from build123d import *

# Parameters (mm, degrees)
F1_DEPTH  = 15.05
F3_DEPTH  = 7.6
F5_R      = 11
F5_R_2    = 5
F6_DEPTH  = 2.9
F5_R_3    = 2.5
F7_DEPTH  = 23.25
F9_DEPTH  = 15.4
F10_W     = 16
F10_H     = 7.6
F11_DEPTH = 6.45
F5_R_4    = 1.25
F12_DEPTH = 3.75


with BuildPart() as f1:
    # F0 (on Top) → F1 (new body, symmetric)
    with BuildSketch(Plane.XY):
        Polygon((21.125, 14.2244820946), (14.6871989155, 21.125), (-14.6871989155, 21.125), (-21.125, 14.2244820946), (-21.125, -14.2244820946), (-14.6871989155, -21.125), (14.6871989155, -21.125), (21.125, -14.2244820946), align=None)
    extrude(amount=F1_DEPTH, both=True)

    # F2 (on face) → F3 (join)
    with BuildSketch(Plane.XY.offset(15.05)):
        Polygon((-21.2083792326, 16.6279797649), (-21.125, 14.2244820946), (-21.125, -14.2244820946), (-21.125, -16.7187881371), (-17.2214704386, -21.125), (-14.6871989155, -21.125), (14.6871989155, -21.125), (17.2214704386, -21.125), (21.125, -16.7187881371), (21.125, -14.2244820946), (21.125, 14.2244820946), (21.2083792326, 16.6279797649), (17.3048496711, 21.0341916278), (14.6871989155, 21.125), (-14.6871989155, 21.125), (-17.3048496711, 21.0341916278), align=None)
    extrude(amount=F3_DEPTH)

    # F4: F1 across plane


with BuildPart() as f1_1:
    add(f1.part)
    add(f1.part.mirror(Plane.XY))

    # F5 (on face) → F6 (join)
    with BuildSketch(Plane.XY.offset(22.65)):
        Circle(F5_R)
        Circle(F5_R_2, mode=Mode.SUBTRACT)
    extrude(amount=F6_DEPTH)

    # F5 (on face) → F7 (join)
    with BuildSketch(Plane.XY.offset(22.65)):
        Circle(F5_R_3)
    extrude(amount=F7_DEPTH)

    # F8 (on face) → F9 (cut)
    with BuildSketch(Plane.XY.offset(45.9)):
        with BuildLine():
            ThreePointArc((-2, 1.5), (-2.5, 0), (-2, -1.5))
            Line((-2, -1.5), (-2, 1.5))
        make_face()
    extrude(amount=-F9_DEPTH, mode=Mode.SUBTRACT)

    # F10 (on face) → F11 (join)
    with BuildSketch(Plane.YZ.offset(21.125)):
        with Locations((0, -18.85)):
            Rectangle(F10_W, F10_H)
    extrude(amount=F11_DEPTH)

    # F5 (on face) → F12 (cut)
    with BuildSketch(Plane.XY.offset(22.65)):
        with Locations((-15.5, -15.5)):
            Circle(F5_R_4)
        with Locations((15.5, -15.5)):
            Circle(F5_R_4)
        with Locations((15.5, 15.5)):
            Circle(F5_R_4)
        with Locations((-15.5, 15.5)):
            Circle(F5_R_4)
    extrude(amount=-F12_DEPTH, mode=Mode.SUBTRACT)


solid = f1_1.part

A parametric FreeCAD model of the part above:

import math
import FreeCAD as App
import Part
import Sketcher

V = App.Vector
Q = App.Units.Quantity

doc = App.newDocument("Part")
params = doc.addObject("Spreadsheet::Sheet", "Params")
for row, (alias, value) in enumerate([
    ("pad1_length", "30.1 mm"),
    ("pad2_length", "7.6 mm"),
    ("sketch3_diameter", "22 mm"),
    ("sketch3_diameter2", "10 mm"),
    ("pad3_length", "2.9 mm"),
    ("sketch4_diameter", "5 mm"),
    ("pad4_length", "23.25 mm"),
    ("sketch5_radius", "2.5 mm"),
    ("sketch5_height", "3 mm"),
    ("pocket1_length", "15.4 mm"),
    ("sketch6_width", "16 mm"),
    ("sketch6_height", "7.6 mm"),
    ("pad5_length", "6.45 mm"),
    ("sketch7_diameter", "2.5 mm"),
    ("pocket2_length", "3.75 mm"),
], start=1):
    params.set(f"A{row}", alias)
    params.set(f"B{row}", "=" + value)
    params.setAlias(f"B{row}", alias)

body = doc.addObject("PartDesign::Body", "Body")

sketch1 = body.newObject("Sketcher::SketchObject", "Sketch")
sketch1.AttachmentSupport = (doc.getObject("XY_Plane"), [""])
sketch1.MapMode = "FlatFace"
sketch1.addGeometry([
    Part.LineSegment(V(21, 14, 0), V(15, 21, 0)),
    Part.LineSegment(V(15, 21, 0), V(-15, 21, 0)),
    Part.LineSegment(V(-15, 21, 0), V(-21, 14, 0)),
    Part.LineSegment(V(-21, 14, 0), V(-21, -14, 0)),
    Part.LineSegment(V(-21, -14, 0), V(-15, -21, 0)),
    Part.LineSegment(V(-15, -21, 0), V(15, -21, 0)),
    Part.LineSegment(V(15, -21, 0), V(21, -14, 0)),
    Part.LineSegment(V(21, -14, 0), V(21, 14, 0)),
], False)
sketch1.addConstraint([
    Sketcher.Constraint("Coincident", 0, 2, 1, 1),
    Sketcher.Constraint("Coincident", 1, 2, 2, 1),
    Sketcher.Constraint("Coincident", 2, 2, 3, 1),
    Sketcher.Constraint("Coincident", 3, 2, 4, 1),
    Sketcher.Constraint("Coincident", 4, 2, 5, 1),
    Sketcher.Constraint("Coincident", 5, 2, 6, 1),
    Sketcher.Constraint("Coincident", 6, 2, 7, 1),
    Sketcher.Constraint("Coincident", 7, 2, 0, 1),
    Sketcher.Constraint("Horizontal", 1),
    Sketcher.Constraint("Vertical", 3),
    Sketcher.Constraint("Horizontal", 5),
    Sketcher.Constraint("Vertical", 7),
    Sketcher.Constraint("Symmetric", 0, 2, 4, 2, -1, 1),
    Sketcher.Constraint("Symmetric", 2, 2, 6, 2, -1, 1),
    Sketcher.Constraint("Parallel", 0, 4),
    Sketcher.Constraint("Parallel", 2, 6),
    Sketcher.Constraint("Horizontal", 3, 2, 6, 2),
    Sketcher.Constraint("Vertical", 1, 2, 4, 2),
    Sketcher.Constraint("DistanceY", 4, 2, 1, 2, Q("42.25 mm")),
    Sketcher.Constraint("DistanceX", 3, 2, 6, 2, Q("42.25 mm")),
    Sketcher.Constraint("DistanceX", -1, 1, 0, 2, Q("14.687199 mm")),
    Sketcher.Constraint("Distance", 0, Q("9.437289 mm")),
])
pad1 = body.newObject("PartDesign::Pad", "Pad")
pad1.Profile = sketch1
pad1.setExpression("Length", "Params.pad1_length")
pad1.Midplane = True

sketch2 = body.newObject("Sketcher::SketchObject", "Sketch001")
sketch2.AttachmentSupport = (doc.getObject("XY_Plane"), [""])
sketch2.MapMode = "FlatFace"
sketch2.AttachmentOffset = App.Placement(V(0, 0, 15.05), App.Rotation())
sketch2.addGeometry([
    Part.LineSegment(V(-21.2, 16.6, 0), V(-21.1, 14.2, 0)),
    Part.LineSegment(V(-21.1, 14.2, 0), V(-21.1, -16.7, 0)),
    Part.LineSegment(V(-21.1, -16.7, 0), V(-17.2, -21.1, 0)),
    Part.LineSegment(V(-17.2, -21.1, 0), V(17.2, -21.1, 0)),
    Part.LineSegment(V(17.2, -21.1, 0), V(21.1, -16.7, 0)),
    Part.LineSegment(V(21.1, -16.7, 0), V(21.1, 14.2, 0)),
    Part.LineSegment(V(21.1, 14.2, 0), V(21.2, 16.6, 0)),
    Part.LineSegment(V(21.2, 16.6, 0), V(17.3, 21, 0)),
    Part.LineSegment(V(17.3, 21, 0), V(14.7, 21.1, 0)),
    Part.LineSegment(V(14.7, 21.1, 0), V(-14.7, 21.1, 0)),
    Part.LineSegment(V(-14.7, 21.1, 0), V(-17.3, 21, 0)),
    Part.LineSegment(V(-17.3, 21, 0), V(-21.2, 16.6, 0)),
], False)
sketch2.addConstraint([
    Sketcher.Constraint("Coincident", 0, 2, 1, 1),
    Sketcher.Constraint("Coincident", 1, 2, 2, 1),
    Sketcher.Constraint("Coincident", 2, 2, 3, 1),
    Sketcher.Constraint("Coincident", 3, 2, 4, 1),
    Sketcher.Constraint("Coincident", 4, 2, 5, 1),
    Sketcher.Constraint("Coincident", 5, 2, 6, 1),
    Sketcher.Constraint("Coincident", 6, 2, 7, 1),
    Sketcher.Constraint("Coincident", 7, 2, 8, 1),
    Sketcher.Constraint("Coincident", 8, 2, 9, 1),
    Sketcher.Constraint("Coincident", 9, 2, 10, 1),
    Sketcher.Constraint("Coincident", 10, 2, 11, 1),
    Sketcher.Constraint("Coincident", 11, 2, 0, 1),
    Sketcher.Constraint("Vertical", 1),
    Sketcher.Constraint("Horizontal", 3),
    Sketcher.Constraint("Vertical", 5),
    Sketcher.Constraint("Horizontal", 9),
    Sketcher.Constraint("Symmetric", 1, 2, 4, 2, -2),
    Sketcher.Constraint("Symmetric", 7, 2, 10, 2, -2),
    Sketcher.Constraint("Symmetric", 6, 2, 11, 2, -2),
    Sketcher.Constraint("Parallel", 2, 7),
    Sketcher.Constraint("Perpendicular", 6, 8),
    Sketcher.Constraint("Perpendicular", 0, 10),
    Sketcher.Constraint("Parallel", 4, 11),
    Sketcher.Constraint("Horizontal", 0, 2, 5, 2),
    Sketcher.Constraint("Equal", 4, 7),
    Sketcher.Constraint("DistanceX", 1, 2, 4, 2, Q("42.25 mm")),
    Sketcher.Constraint("DistanceY", 2, 2, -1, 1, Q("21.125 mm")),
    Sketcher.Constraint("DistanceY", -1, 1, 8, 2, Q("21.125 mm")),
    Sketcher.Constraint("DistanceX", 3, 1, 3, 2, Q("34.442941 mm")),
    Sketcher.Constraint("DistanceY", 1, 2, 1, 1, Q("30.94327 mm")),
    Sketcher.Constraint("DistanceX", -1, 1, 8, 2, Q("14.687199 mm")),
    Sketcher.Constraint("DistanceX", 10, 2, 7, 2, Q("34.609699 mm")),
    Sketcher.Constraint("DistanceY", 1, 2, -1, 1, Q("16.718788 mm")),
])
pad2 = body.newObject("PartDesign::Pad", "Pad001")
pad2.Profile = sketch2
pad2.setExpression("Length", "Params.pad2_length")
body2 = doc.addObject("PartDesign::Body", "Body001")
doc.recompute()

body2.BaseFeature = body
doc.recompute()

mirroring = doc.addObject("Part::Mirroring", "Mirroring")
mirroring.Source = body
mirroring.Base = V(0, 0, 0)
mirroring.Normal = V(0, 0, 1)
body3 = doc.addObject("PartDesign::Body", "Body002")
body3.BaseFeature = mirroring
boolean = body2.newObject("PartDesign::Boolean", "Boolean")
boolean.Type = "Fuse"
boolean.addObjects([body3])
doc.recompute()

sketch3 = body2.newObject("Sketcher::SketchObject", "Sketch002")
sketch3.AttachmentSupport = (doc.getObject("XY_Plane001"), [""])
sketch3.MapMode = "FlatFace"
sketch3.AttachmentOffset = App.Placement(V(0, 0, 22.65), App.Rotation())
sketch3.addGeometry([
    Part.Circle(V(0, 0, 0), V(0, 0, 1), 11),
    Part.Circle(V(0, 0, 0), V(0, 0, 1), 5),
], False)
sketch3.addConstraint([
    Sketcher.Constraint("Coincident", 0, 3, -1, 1),
    Sketcher.Constraint("Coincident", 1, 3, -1, 1),
    Sketcher.Constraint("Diameter", 0, Q("22 mm")),
    Sketcher.Constraint("Diameter", 1, Q("10 mm")),
])
sketch3.setExpression("Constraints[2]", "Params.sketch3_diameter")
sketch3.setExpression("Constraints[3]", "Params.sketch3_diameter2")
pad3 = body2.newObject("PartDesign::Pad", "Pad002")
pad3.Profile = sketch3
pad3.setExpression("Length", "Params.pad3_length")

sketch4 = body2.newObject("Sketcher::SketchObject", "Sketch003")
sketch4.AttachmentSupport = (doc.getObject("XY_Plane001"), [""])
sketch4.MapMode = "FlatFace"
sketch4.AttachmentOffset = App.Placement(V(0, 0, 22.65), App.Rotation())
sketch4.addGeometry(Part.Circle(V(0, 0, 0), V(0, 0, 1), 2.5), False)
sketch4.addConstraint([
    Sketcher.Constraint("Coincident", 0, 3, -1, 1),
    Sketcher.Constraint("Diameter", 0, Q("5 mm")),
])
sketch4.setExpression("Constraints[1]", "Params.sketch4_diameter")
pad4 = body2.newObject("PartDesign::Pad", "Pad003")
pad4.Profile = sketch4
pad4.setExpression("Length", "Params.pad4_length")

sketch5 = body2.newObject("Sketcher::SketchObject", "Sketch004")
sketch5.AttachmentSupport = (doc.getObject("XY_Plane001"), [""])
sketch5.MapMode = "FlatFace"
sketch5.AttachmentOffset = App.Placement(V(0, 0, 45.9), App.Rotation())
sketch5.addGeometry([
    Part.ArcOfCircle(Part.Circle(V(0, 0, 0), V(0, 0, 1), 2.5), math.radians(143), math.radians(217)),
    Part.LineSegment(V(-2, -1.5, 0), V(-2, 1.5, 0)),
], False)
sketch5.addConstraint([
    Sketcher.Constraint("Coincident", 0, 1, 1, 2),
    Sketcher.Constraint("Coincident", 1, 1, 0, 2),
    Sketcher.Constraint("Vertical", 1),
    Sketcher.Constraint("Coincident", 0, 3, -1, 1),
    Sketcher.Constraint("Radius", 0, Q("2.5 mm")),
    Sketcher.Constraint("DistanceY", 1, 1, 1, 2, Q("3 mm")),
])
sketch5.setExpression("Constraints[4]", "Params.sketch5_radius")
sketch5.setExpression("Constraints[5]", "Params.sketch5_height")
pocket1 = body2.newObject("PartDesign::Pocket", "Pocket")
pocket1.Profile = sketch5
pocket1.setExpression("Length", "Params.pocket1_length")

sketch6 = body2.newObject("Sketcher::SketchObject", "Sketch005")
sketch6.AttachmentSupport = (doc.getObject("YZ_Plane001"), [""])
sketch6.MapMode = "FlatFace"
sketch6.AttachmentOffset = App.Placement(V(0, 0, 21.125), App.Rotation())
sketch6.addGeometry([
    Part.LineSegment(V(-8, -15, 0), V(-8, -23, 0)),
    Part.LineSegment(V(-8, -23, 0), V(8, -23, 0)),
    Part.LineSegment(V(8, -23, 0), V(8, -15, 0)),
    Part.LineSegment(V(8, -15, 0), V(-8, -15, 0)),
], False)
sketch6.addConstraint([
    Sketcher.Constraint("Coincident", 0, 2, 1, 1),
    Sketcher.Constraint("Coincident", 1, 2, 2, 1),
    Sketcher.Constraint("Coincident", 2, 2, 3, 1),
    Sketcher.Constraint("Coincident", 3, 2, 0, 1),
    Sketcher.Constraint("Vertical", 0),
    Sketcher.Constraint("Horizontal", 1),
    Sketcher.Constraint("Vertical", 2),
    Sketcher.Constraint("Horizontal", 3),
    Sketcher.Constraint("DistanceX", 1, 1, 1, 2, Q("16 mm")),
    Sketcher.Constraint("DistanceY", 0, 2, 0, 1, Q("7.6 mm")),
    Sketcher.Constraint("DistanceX", 0, 2, -1, 1, Q("8 mm")),
    Sketcher.Constraint("DistanceY", 0, 2, -1, 1, Q("22.65 mm")),
])
sketch6.setExpression("Constraints[8]", "Params.sketch6_width")
sketch6.setExpression("Constraints[9]", "Params.sketch6_height")
pad5 = body2.newObject("PartDesign::Pad", "Pad004")
pad5.Profile = sketch6
pad5.setExpression("Length", "Params.pad5_length")

sketch7 = body2.newObject("Sketcher::SketchObject", "Sketch006")
sketch7.AttachmentSupport = (doc.getObject("XY_Plane001"), [""])
sketch7.MapMode = "FlatFace"
sketch7.AttachmentOffset = App.Placement(V(0, 0, 22.65), App.Rotation())
sketch7.addGeometry([
    Part.Circle(V(-15.5, -15.5, 0), V(0, 0, 1), 1.2),
    Part.Circle(V(15.5, -15.5, 0), V(0, 0, 1), 1.2),
    Part.Circle(V(15.5, 15.5, 0), V(0, 0, 1), 1.2),
    Part.Circle(V(-15.5, 15.5, 0), V(0, 0, 1), 1.2),
], False)
sketch7.addConstraint([
    Sketcher.Constraint("Equal", 0, 1),
    Sketcher.Constraint("Equal", 1, 2),
    Sketcher.Constraint("Equal", 2, 3),
    Sketcher.Constraint("Symmetric", 0, 3, 2, 3, -1, 1),
    Sketcher.Constraint("Symmetric", 1, 3, 3, 3, -1, 1),
    Sketcher.Constraint("Symmetric", 0, 3, 1, 3, -2),
    Sketcher.Constraint("Diameter", 0, Q("2.5 mm")),
    Sketcher.Constraint("DistanceX", 0, 3, 1, 3, Q("31 mm")),
    Sketcher.Constraint("DistanceY", 1, 3, 2, 3, Q("31 mm")),
])
sketch7.setExpression("Constraints[6]", "Params.sketch7_diameter")
pocket2 = body2.newObject("PartDesign::Pocket", "Pocket001")
pocket2.Profile = sketch7
pocket2.setExpression("Length", "Params.pocket2_length")
mirroring.Visibility = False

doc.recompute()
